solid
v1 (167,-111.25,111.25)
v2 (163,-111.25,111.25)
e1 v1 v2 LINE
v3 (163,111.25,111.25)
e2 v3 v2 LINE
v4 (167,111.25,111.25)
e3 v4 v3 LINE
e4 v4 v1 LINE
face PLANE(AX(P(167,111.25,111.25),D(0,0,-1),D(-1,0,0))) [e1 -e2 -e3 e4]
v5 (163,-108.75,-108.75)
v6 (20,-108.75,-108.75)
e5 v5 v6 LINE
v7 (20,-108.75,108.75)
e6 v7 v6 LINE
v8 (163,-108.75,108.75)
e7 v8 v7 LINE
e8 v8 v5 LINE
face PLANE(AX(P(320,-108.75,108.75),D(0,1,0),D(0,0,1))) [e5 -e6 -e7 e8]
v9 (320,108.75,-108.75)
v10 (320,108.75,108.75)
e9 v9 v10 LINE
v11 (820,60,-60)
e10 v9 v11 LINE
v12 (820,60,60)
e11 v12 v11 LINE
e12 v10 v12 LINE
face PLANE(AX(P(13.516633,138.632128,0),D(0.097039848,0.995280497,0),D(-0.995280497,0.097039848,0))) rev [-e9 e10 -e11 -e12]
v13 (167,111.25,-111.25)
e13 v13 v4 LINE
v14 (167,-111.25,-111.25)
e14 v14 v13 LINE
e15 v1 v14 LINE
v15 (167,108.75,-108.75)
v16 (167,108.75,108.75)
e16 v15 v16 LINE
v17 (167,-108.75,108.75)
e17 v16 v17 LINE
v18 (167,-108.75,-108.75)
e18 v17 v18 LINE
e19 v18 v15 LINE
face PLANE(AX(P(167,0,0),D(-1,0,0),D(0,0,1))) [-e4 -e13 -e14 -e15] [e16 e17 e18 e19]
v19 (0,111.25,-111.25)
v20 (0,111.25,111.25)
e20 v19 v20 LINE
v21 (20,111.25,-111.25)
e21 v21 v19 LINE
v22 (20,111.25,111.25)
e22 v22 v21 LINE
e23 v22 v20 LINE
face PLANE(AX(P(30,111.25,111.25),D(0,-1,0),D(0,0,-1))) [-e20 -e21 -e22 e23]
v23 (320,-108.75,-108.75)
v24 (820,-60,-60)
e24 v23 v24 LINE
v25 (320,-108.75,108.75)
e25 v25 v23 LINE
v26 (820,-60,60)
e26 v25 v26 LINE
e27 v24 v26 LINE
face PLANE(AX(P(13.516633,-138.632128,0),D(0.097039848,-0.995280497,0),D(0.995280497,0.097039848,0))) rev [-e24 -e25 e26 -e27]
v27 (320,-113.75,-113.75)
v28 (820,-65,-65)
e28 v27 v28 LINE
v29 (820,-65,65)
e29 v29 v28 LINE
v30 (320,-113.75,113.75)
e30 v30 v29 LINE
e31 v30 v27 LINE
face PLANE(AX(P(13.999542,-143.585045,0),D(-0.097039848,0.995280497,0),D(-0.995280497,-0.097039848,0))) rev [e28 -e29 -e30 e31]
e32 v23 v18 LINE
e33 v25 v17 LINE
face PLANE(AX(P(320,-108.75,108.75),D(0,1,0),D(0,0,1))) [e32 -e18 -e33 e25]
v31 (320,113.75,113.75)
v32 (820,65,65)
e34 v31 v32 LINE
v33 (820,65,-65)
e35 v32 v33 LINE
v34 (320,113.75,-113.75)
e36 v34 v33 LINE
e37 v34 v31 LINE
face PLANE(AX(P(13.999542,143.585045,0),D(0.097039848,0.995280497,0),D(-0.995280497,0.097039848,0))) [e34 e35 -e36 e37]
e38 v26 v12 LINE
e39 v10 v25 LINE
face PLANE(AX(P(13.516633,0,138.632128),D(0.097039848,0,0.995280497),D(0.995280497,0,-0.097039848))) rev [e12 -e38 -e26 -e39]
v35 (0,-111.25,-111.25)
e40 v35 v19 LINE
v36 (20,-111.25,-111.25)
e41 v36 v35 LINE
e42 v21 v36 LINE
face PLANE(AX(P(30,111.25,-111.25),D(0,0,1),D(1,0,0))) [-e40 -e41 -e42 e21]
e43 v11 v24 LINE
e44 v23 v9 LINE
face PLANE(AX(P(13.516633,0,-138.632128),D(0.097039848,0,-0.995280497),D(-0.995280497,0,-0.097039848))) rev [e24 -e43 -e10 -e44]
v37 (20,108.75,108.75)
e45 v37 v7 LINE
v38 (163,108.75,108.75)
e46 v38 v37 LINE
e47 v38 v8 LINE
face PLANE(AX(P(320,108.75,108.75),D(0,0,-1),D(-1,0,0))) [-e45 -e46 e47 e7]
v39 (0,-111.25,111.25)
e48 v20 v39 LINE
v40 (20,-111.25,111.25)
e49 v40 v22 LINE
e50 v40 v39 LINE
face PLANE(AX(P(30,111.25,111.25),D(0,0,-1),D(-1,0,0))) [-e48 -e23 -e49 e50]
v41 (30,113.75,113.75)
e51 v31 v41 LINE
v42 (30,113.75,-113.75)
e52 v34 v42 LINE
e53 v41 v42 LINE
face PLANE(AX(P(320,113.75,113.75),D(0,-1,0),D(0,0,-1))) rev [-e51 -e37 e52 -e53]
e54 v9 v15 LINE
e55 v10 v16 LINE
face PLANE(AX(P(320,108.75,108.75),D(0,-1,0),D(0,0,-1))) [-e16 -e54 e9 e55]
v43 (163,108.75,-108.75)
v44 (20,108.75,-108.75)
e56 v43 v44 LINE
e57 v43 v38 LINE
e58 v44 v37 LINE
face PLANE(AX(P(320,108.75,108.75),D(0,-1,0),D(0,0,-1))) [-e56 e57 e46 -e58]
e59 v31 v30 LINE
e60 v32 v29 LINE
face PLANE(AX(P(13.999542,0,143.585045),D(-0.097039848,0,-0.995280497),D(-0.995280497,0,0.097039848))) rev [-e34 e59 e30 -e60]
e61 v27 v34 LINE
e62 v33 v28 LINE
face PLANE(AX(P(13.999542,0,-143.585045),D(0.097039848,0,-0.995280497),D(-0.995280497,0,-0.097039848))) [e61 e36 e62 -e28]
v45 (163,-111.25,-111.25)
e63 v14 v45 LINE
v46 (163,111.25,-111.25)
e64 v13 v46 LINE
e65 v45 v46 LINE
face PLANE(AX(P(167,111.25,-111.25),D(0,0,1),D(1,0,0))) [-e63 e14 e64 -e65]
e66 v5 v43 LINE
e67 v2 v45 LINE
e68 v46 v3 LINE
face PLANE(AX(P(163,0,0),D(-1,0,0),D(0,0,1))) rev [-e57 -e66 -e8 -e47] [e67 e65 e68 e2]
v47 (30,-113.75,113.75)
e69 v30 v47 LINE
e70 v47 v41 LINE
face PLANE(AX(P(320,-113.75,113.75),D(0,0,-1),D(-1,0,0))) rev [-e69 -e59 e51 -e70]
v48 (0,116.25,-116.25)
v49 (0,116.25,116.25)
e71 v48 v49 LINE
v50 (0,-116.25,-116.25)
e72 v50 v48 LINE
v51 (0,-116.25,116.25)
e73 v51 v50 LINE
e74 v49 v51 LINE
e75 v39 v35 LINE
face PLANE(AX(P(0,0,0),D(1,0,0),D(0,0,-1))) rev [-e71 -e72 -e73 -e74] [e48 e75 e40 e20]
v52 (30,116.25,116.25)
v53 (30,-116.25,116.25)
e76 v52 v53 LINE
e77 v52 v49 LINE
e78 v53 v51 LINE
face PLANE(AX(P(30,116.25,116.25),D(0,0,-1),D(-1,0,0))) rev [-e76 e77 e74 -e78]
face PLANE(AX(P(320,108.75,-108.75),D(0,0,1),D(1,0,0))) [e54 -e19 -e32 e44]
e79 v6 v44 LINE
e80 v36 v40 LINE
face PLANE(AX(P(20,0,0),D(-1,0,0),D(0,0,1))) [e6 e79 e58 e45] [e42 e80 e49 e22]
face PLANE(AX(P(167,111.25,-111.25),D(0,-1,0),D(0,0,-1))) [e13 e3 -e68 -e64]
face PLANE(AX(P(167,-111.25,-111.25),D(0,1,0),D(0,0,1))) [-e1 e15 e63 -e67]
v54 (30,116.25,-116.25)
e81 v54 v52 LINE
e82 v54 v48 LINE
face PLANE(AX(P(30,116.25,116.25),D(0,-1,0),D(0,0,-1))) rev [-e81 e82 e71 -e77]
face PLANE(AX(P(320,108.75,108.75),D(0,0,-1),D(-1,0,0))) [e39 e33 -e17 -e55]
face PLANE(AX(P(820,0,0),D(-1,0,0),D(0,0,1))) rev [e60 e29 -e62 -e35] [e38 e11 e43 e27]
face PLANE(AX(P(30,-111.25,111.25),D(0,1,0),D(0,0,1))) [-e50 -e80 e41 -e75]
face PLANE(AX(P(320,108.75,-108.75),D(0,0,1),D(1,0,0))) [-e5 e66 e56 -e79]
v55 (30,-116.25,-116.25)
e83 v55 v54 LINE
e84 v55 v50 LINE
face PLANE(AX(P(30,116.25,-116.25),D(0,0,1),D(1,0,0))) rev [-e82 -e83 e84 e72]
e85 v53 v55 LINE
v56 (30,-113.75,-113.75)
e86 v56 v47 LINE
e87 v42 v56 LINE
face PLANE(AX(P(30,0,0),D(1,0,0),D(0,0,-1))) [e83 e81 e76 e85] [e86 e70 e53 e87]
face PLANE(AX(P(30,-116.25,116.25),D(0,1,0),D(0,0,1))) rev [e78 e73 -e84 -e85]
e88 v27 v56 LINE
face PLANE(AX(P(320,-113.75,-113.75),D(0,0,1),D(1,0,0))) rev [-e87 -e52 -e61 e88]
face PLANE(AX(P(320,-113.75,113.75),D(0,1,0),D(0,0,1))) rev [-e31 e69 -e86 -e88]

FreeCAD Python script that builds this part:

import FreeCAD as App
import Part
import Sketcher

V = App.Vector
Q = App.Units.Quantity

doc = App.newDocument("Part")
body = doc.addObject("PartDesign::Body", "Body")

# Sketch on YZ plane
sketch1 = body.newObject("Sketcher::SketchObject", "Sketch")
sketch1.AttachmentSupport = (doc.getObject("YZ_Plane"), [""])
sketch1.MapMode = "FlatFace"
sketch1.addGeometry([
    Part.LineSegment(V(116, 116, 0), V(-116, 116, 0)),  # 0
    Part.LineSegment(V(-116, 116, 0), V(-116, -116, 0)),  # 1
    Part.LineSegment(V(-116, -116, 0), V(116, -116, 0)),  # 2
    Part.LineSegment(V(116, -116, 0), V(116, 116, 0)),  # 3
    Part.LineSegment(V(-111, -111, 0), V(-111, 111, 0)),  # 4
    Part.LineSegment(V(-111, 111, 0), V(111, 111, 0)),  # 5
    Part.LineSegment(V(111, 111, 0), V(111, -111, 0)),  # 6
    Part.LineSegment(V(111, -111, 0), V(-111, -111, 0)),  # 7
], False)
sketch1.addConstraint([
    Sketcher.Constraint("Coincident", 0, 2, 1, 1),
    Sketcher.Constraint("Coincident", 1, 2, 2, 1),
    Sketcher.Constraint("Coincident", 2, 2, 3, 1),
    Sketcher.Constraint("Coincident", 3, 2, 0, 1),
    Sketcher.Constraint("Coincident", 4, 2, 5, 1),
    Sketcher.Constraint("Coincident", 5, 2, 6, 1),
    Sketcher.Constraint("Coincident", 6, 2, 7, 1),
    Sketcher.Constraint("Coincident", 7, 2, 4, 1),
    Sketcher.Constraint("Horizontal", 0),
    Sketcher.Constraint("Vertical", 1),
    Sketcher.Constraint("Horizontal", 2),
    Sketcher.Constraint("Vertical", 3),
    Sketcher.Constraint("Vertical", 4),
    Sketcher.Constraint("Horizontal", 5),
    Sketcher.Constraint("Vertical", 6),
    Sketcher.Constraint("Horizontal", 7),
    Sketcher.Constraint("Symmetric", 0, 2, 2, 2, -1, 1),
    Sketcher.Constraint("Symmetric", 4, 2, 6, 2, -1, 1),
    Sketcher.Constraint("Equal", 2, 1),
    Sketcher.Constraint("Equal", 7, 4),
    Sketcher.Constraint("DistanceX", 0, 2, 0, 1, Q("232.5 mm")),
    Sketcher.Constraint("DistanceX", 5, 1, 5, 2, Q("222.5 mm")),
])
pad1 = body.newObject("PartDesign::Pad", "Pad")
pad1.Profile = sketch1
pad1.Length = 30

# Sketch on YZ plane
sketch2 = body.newObject("Sketcher::SketchObject", "Sketch001")
sketch2.AttachmentSupport = (doc.getObject("YZ_Plane"), [""])
sketch2.MapMode = "FlatFace"
sketch2.AttachmentOffset = App.Placement(V(0, 0, 20), App.Rotation())
sketch2.addGeometry([
    Part.LineSegment(V(114, 114, 0), V(-114, 114, 0)),  # 0
    Part.LineSegment(V(-114, 114, 0), V(-114, -114, 0)),  # 1
    Part.LineSegment(V(-114, -114, 0), V(114, -114, 0)),  # 2
    Part.LineSegment(V(114, -114, 0), V(114, 114, 0)),  # 3
    Part.LineSegment(V(-109, -109, 0), V(-109, 109, 0)),  # 4
    Part.LineSegment(V(-109, 109, 0), V(109, 109, 0)),  # 5
    Part.LineSegment(V(109, 109, 0), V(109, -109, 0)),  # 6
    Part.LineSegment(V(109, -109, 0), V(-109, -109, 0)),  # 7
], False)
sketch2.addConstraint([
    Sketcher.Constraint("Coincident", 0, 2, 1, 1),
    Sketcher.Constraint("Coincident", 1, 2, 2, 1),
    Sketcher.Constraint("Coincident", 2, 2, 3, 1),
    Sketcher.Constraint("Coincident", 3, 2, 0, 1),
    Sketcher.Constraint("Coincident", 4, 2, 5, 1),
    Sketcher.Constraint("Coincident", 5, 2, 6, 1),
    Sketcher.Constraint("Coincident", 6, 2, 7, 1),
    Sketcher.Constraint("Coincident", 7, 2, 4, 1),
    Sketcher.Constraint("Horizontal", 0),
    Sketcher.Constraint("Vertical", 1),
    Sketcher.Constraint("Horizontal", 2),
    Sketcher.Constraint("Vertical", 3),
    Sketcher.Constraint("Vertical", 4),
    Sketcher.Constraint("Horizontal", 5),
    Sketcher.Constraint("Vertical", 6),
    Sketcher.Constraint("Horizontal", 7),
    Sketcher.Constraint("Symmetric", 0, 2, 2, 2, -1, 1),
    Sketcher.Constraint("Symmetric", 4, 2, 6, 2, -1, 1),
    Sketcher.Constraint("Equal", 2, 1),
    Sketcher.Constraint("Equal", 7, 4),
    Sketcher.Constraint("DistanceX", 0, 2, 0, 1, Q("227.5 mm")),
    Sketcher.Constraint("DistanceX", 5, 1, 5, 2, Q("217.5 mm")),
])
pad2 = body.newObject("PartDesign::Pad", "Pad001")
pad2.Profile = sketch2
pad2.Length = 300

# Sketch on YZ plane
sketch3 = body.newObject("Sketcher::SketchObject", "Sketch002")
sketch3.AttachmentSupport = (doc.getObject("YZ_Plane"), [""])
sketch3.MapMode = "FlatFace"
sketch3.AttachmentOffset = App.Placement(V(0, 0, 320), App.Rotation())
sketch3.addGeometry([
    Part.LineSegment(V(114, -114, 0), V(114, 114, 0)),
    Part.LineSegment(V(114, 114, 0), V(-114, 114, 0)),
    Part.LineSegment(V(-114, 114, 0), V(-114, -114, 0)),
    Part.LineSegment(V(-114, -114, 0), V(114, -114, 0)),
], False)
sketch3.addConstraint([
    Sketcher.Constraint("Coincident", 0, 2, 1, 1),
    Sketcher.Constraint("Coincident", 1, 2, 2, 1),
    Sketcher.Constraint("Coincident", 2, 2, 3, 1),
    Sketcher.Constraint("Coincident", 3, 2, 0, 1),
    Sketcher.Constraint("Vertical", 0),
    Sketcher.Constraint("Horizontal", 1),
    Sketcher.Constraint("Vertical", 2),
    Sketcher.Constraint("Horizontal", 3),
    Sketcher.Constraint("Symmetric", 0, 2, 2, 2, -1, 1),
    Sketcher.Constraint("Equal", 3, 0),
    Sketcher.Constraint("DistanceX", 1, 2, 1, 1, Q("227.5 mm")),
])

# Sketch on YZ plane
sketch4 = body.newObject("Sketcher::SketchObject", "Sketch003")
sketch4.AttachmentSupport = (doc.getObject("YZ_Plane"), [""])
sketch4.MapMode = "FlatFace"
sketch4.AttachmentOffset = App.Placement(V(0, 0, 820), App.Rotation())
sketch4.addGeometry([
    Part.LineSegment(V(65, -65, 0), V(65, 65, 0)),
    Part.LineSegment(V(65, 65, 0), V(-65, 65, 0)),
    Part.LineSegment(V(-65, 65, 0), V(-65, -65, 0)),
    Part.LineSegment(V(-65, -65, 0), V(65, -65, 0)),
], False)
sketch4.addConstraint([
    Sketcher.Constraint("Coincident", 0, 2, 1, 1),
    Sketcher.Constraint("Coincident", 1, 2, 2, 1),
    Sketcher.Constraint("Coincident", 2, 2, 3, 1),
    Sketcher.Constraint("Coincident", 3, 2, 0, 1),
    Sketcher.Constraint("Vertical", 0),
    Sketcher.Constraint("Horizontal", 1),
    Sketcher.Constraint("Vertical", 2),
    Sketcher.Constraint("Horizontal", 3),
    Sketcher.Constraint("Symmetric", 0, 2, 2, 2, -1, 1),
    Sketcher.Constraint("Equal", 3, 0),
    Sketcher.Constraint("DistanceX", 1, 2, 1, 1, Q("130 mm")),
])

additiveloft = body.newObject("PartDesign::AdditiveLoft", "AdditiveLoft")
additiveloft.Profile = sketch3
additiveloft.Sections = [sketch4]

# Sketch on YZ plane
sketch5 = body.newObject("Sketcher::SketchObject", "Sketch004")
sketch5.AttachmentSupport = (doc.getObject("YZ_Plane"), [""])
sketch5.MapMode = "FlatFace"
sketch5.AttachmentOffset = App.Placement(V(0, 0, 320), App.Rotation())
sketch5.addGeometry([
    Part.LineSegment(V(109, -109, 0), V(109, 109, 0)),
    Part.LineSegment(V(109, 109, 0), V(-109, 109, 0)),
    Part.LineSegment(V(-109, 109, 0), V(-109, -109, 0)),
    Part.LineSegment(V(-109, -109, 0), V(109, -109, 0)),
], False)
sketch5.addConstraint([
    Sketcher.Constraint("Coincident", 0, 2, 1, 1),
    Sketcher.Constraint("Coincident", 1, 2, 2, 1),
    Sketcher.Constraint("Coincident", 2, 2, 3, 1),
    Sketcher.Constraint("Coincident", 3, 2, 0, 1),
    Sketcher.Constraint("Vertical", 0),
    Sketcher.Constraint("Horizontal", 1),
    Sketcher.Constraint("Vertical", 2),
    Sketcher.Constraint("Horizontal", 3),
    Sketcher.Constraint("Symmetric", 0, 2, 2, 2, -1, 1),
    Sketcher.Constraint("Equal", 3, 0),
    Sketcher.Constraint("DistanceX", 1, 2, 1, 1, Q("217.5 mm")),
])

# Sketch on YZ plane
sketch6 = body.newObject("Sketcher::SketchObject", "Sketch005")
sketch6.AttachmentSupport = (doc.getObject("YZ_Plane"), [""])
sketch6.MapMode = "FlatFace"
sketch6.AttachmentOffset = App.Placement(V(0, 0, 820), App.Rotation())
sketch6.addGeometry([
    Part.LineSegment(V(60, -60, 0), V(60, 60, 0)),
    Part.LineSegment(V(60, 60, 0), V(-60, 60, 0)),
    Part.LineSegment(V(-60, 60, 0), V(-60, -60, 0)),
    Part.LineSegment(V(-60, -60, 0), V(60, -60, 0)),
], False)
sketch6.addConstraint([
    Sketcher.Constraint("Coincident", 0, 2, 1, 1),
    Sketcher.Constraint("Coincident", 1, 2, 2, 1),
    Sketcher.Constraint("Coincident", 2, 2, 3, 1),
    Sketcher.Constraint("Coincident", 3, 2, 0, 1),
    Sketcher.Constraint("Vertical", 0),
    Sketcher.Constraint("Horizontal", 1),
    Sketcher.Constraint("Vertical", 2),
    Sketcher.Constraint("Horizontal", 3),
    Sketcher.Constraint("Symmetric", 0, 2, 2, 2, -1, 1),
    Sketcher.Constraint("Equal", 3, 0),
    Sketcher.Constraint("DistanceX", 1, 2, 1, 1, Q("120 mm")),
])

subtractiveloft = body.newObject("PartDesign::SubtractiveLoft", "SubtractiveLoft")
subtractiveloft.Profile = sketch5
subtractiveloft.Sections = [sketch6]

# Sketch on YZ plane
sketch7 = body.newObject("Sketcher::SketchObject", "Sketch006")
sketch7.AttachmentSupport = (doc.getObject("YZ_Plane"), [""])
sketch7.MapMode = "FlatFace"
sketch7.AttachmentOffset = App.Placement(V(0, 0, 165), App.Rotation())
sketch7.addGeometry([
    Part.LineSegment(V(111, 111, 0), V(-111, 111, 0)),  # 0
    Part.LineSegment(V(-111, 111, 0), V(-111, -111, 0)),  # 1
    Part.LineSegment(V(-111, -111, 0), V(111, -111, 0)),  # 2
    Part.LineSegment(V(111, -111, 0), V(111, 111, 0)),  # 3
    Part.LineSegment(V(-109, -109, 0), V(-109, 109, 0)),  # 4
    Part.LineSegment(V(-109, 109, 0), V(109, 109, 0)),  # 5
    Part.LineSegment(V(109, 109, 0), V(109, -109, 0)),  # 6
    Part.LineSegment(V(109, -109, 0), V(-109, -109, 0)),  # 7
], False)
sketch7.addConstraint([
    Sketcher.Constraint("Coincident", 0, 2, 1, 1),
    Sketcher.Constraint("Coincident", 1, 2, 2, 1),
    Sketcher.Constraint("Coincident", 2, 2, 3, 1),
    Sketcher.Constraint("Coincident", 3, 2, 0, 1),
    Sketcher.Constraint("Coincident", 4, 2, 5, 1),
    Sketcher.Constraint("Coincident", 5, 2, 6, 1),
    Sketcher.Constraint("Coincident", 6, 2, 7, 1),
    Sketcher.Constraint("Coincident", 7, 2, 4, 1),
    Sketcher.Constraint("Horizontal", 0),
    Sketcher.Constraint("Vertical", 1),
    Sketcher.Constraint("Horizontal", 2),
    Sketcher.Constraint("Vertical", 3),
    Sketcher.Constraint("Vertical", 4),
    Sketcher.Constraint("Horizontal", 5),
    Sketcher.Constraint("Vertical", 6),
    Sketcher.Constraint("Horizontal", 7),
    Sketcher.Constraint("Symmetric", 0, 2, 2, 2, -1, 1),
    Sketcher.Constraint("Symmetric", 4, 2, 6, 2, -1, 1),
    Sketcher.Constraint("Equal", 2, 1),
    Sketcher.Constraint("Equal", 7, 4),
    Sketcher.Constraint("DistanceX", 0, 2, 0, 1, Q("222.5 mm")),
    Sketcher.Constraint("DistanceX", 5, 1, 5, 2, Q("217.5 mm")),
])
pocket1 = body.newObject("PartDesign::Pocket", "Pocket")
pocket1.Profile = sketch7
pocket1.Type = "TwoLengths"
pocket1.Length = 2
pocket1.Length2 = 2
pocket1.Reversed = True

doc.recompute()
